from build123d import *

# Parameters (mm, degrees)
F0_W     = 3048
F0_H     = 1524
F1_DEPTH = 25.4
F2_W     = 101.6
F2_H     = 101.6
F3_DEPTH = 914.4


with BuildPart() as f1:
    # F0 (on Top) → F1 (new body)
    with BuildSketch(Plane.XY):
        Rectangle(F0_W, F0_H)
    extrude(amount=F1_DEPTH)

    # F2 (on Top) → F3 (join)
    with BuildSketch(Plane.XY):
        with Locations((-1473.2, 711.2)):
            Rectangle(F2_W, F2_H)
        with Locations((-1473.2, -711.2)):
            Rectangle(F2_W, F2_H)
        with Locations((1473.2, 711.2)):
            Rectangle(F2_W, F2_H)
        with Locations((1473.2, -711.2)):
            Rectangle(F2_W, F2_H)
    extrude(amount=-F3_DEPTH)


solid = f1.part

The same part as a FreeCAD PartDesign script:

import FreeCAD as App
import Part
import Sketcher

V = App.Vector
Q = App.Units.Quantity

doc = App.newDocument("Part")
params = doc.addObject("Spreadsheet::Sheet", "Params")
for row, (alias, value) in enumerate([
    ("sketch1_width", "120 in"),
    ("sketch1_height", "60 in"),
    ("pad1_length", "1 in"),
    ("sketch2_width", "4 in"),
    ("pad2_length", "36 in"),
], start=1):
    params.set(f"A{row}", alias)
    params.set(f"B{row}", "=" + value)
    params.setAlias(f"B{row}", alias)

body = doc.addObject("PartDesign::Body", "Body")

# Sketch on XY plane
sketch1 = body.newObject("Sketcher::SketchObject", "Sketch")
sketch1.AttachmentSupport = (doc.getObject("XY_Plane"), [""])
sketch1.MapMode = "FlatFace"
sketch1.addGeometry([
    Part.LineSegment(V(-1524, 762, 0), V(-1524, -762, 0)),
    Part.LineSegment(V(-1524, -762, 0), V(1524, -762, 0)),
    Part.LineSegment(V(1524, -762, 0), V(1524, 762, 0)),
    Part.LineSegment(V(1524, 762, 0), V(-1524, 762, 0)),
], False)
sketch1.addConstraint([
    Sketcher.Constraint("Coincident", 0, 2, 1, 1),
    Sketcher.Constraint("Coincident", 1, 2, 2, 1),
    Sketcher.Constraint("Coincident", 2, 2, 3, 1),
    Sketcher.Constraint("Coincident", 3, 2, 0, 1),
    Sketcher.Constraint("Vertical", 0),
    Sketcher.Constraint("Horizontal", 1),
    Sketcher.Constraint("Vertical", 2),
    Sketcher.Constraint("Horizontal", 3),
    Sketcher.Constraint("Symmetric", 0, 2, 2, 2, -1, 1),
    Sketcher.Constraint("DistanceX", 1, 1, 1, 2, Q("120 in")),
    Sketcher.Constraint("DistanceY", 0, 2, 0, 1, Q("60 in")),
])
sketch1.setExpression("Constraints[9]", "Params.sketch1_width")
sketch1.setExpression("Constraints[10]", "Params.sketch1_height")
pad1 = body.newObject("PartDesign::Pad", "Pad")
pad1.Profile = sketch1
pad1.setExpression("Length", "Params.pad1_length")

# Sketch on XY plane
sketch2 = body.newObject("Sketcher::SketchObject", "Sketch001")
sketch2.AttachmentSupport = (doc.getObject("XY_Plane"), [""])
sketch2.MapMode = "FlatFace"
sketch2.addGeometry([
    Part.LineSegment(V(-1524, 762, 0), V(-1524, 660, 0)),  # 0
    Part.LineSegment(V(-1524, 660, 0), V(-1422, 660, 0)),  # 1
    Part.LineSegment(V(-1422, 660, 0), V(-1422, 762, 0)),  # 2
    Part.LineSegment(V(-1422, 762, 0), V(-1524, 762, 0)),  # 3
    Part.LineSegment(V(-1524, -660, 0), V(-1524, -762, 0)),  # 4
    Part.LineSegment(V(-1524, -762, 0), V(-1422, -762, 0)),  # 5
    Part.LineSegment(V(-1422, -762, 0), V(-1422, -660, 0)),  # 6
    Part.LineSegment(V(-1422, -660, 0), V(-1524, -660, 0)),  # 7
    Part.LineSegment(V(1422, 762, 0), V(1422, 660, 0)),  # 8
    Part.LineSegment(V(1422, 660, 0), V(1524, 660, 0)),  # 9
    Part.LineSegment(V(1524, 660, 0), V(1524, 762, 0)),  # 10
    Part.LineSegment(V(1524, 762, 0), V(1422, 762, 0)),  # 11
    Part.LineSegment(V(1422, -660, 0), V(1422, -762, 0)),  # 12
    Part.LineSegment(V(1422, -762, 0), V(1524, -762, 0)),  # 13
    Part.LineSegment(V(1524, -762, 0), V(1524, -660, 0)),  # 14
    Part.LineSegment(V(1524, -660, 0), V(1422, -660, 0)),  # 15
], False)
sketch2.addConstraint([
    Sketcher.Constraint("Coincident", 0, 2, 1, 1),
    Sketcher.Constraint("Coincident", 1, 2, 2, 1),
    Sketcher.Constraint("Coincident", 2, 2, 3, 1),
    Sketcher.Constraint("Coincident", 3, 2, 0, 1),
    Sketcher.Constraint("Coincident", 4, 2, 5, 1),
    Sketcher.Constraint("Coincident", 5, 2, 6, 1),
    Sketcher.Constraint("Coincident", 6, 2, 7, 1),
    Sketcher.Constraint("Coincident", 7, 2, 4, 1),
    Sketcher.Constraint("Coincident", 8, 2, 9, 1),
    Sketcher.Constraint("Coincident", 9, 2, 10, 1),
    Sketcher.Constraint("Coincident", 10, 2, 11, 1),
    Sketcher.Constraint("Coincident", 11, 2, 8, 1),
    Sketcher.Constraint("Coincident", 12, 2, 13, 1),
    Sketcher.Constraint("Coincident", 13, 2, 14, 1),
    Sketcher.Constraint("Coincident", 14, 2, 15, 1),
    Sketcher.Constraint("Coincident", 15, 2, 12, 1),
    Sketcher.Constraint("Vertical", 0),
    Sketcher.Constraint("Horizontal", 1),
    Sketcher.Constraint("Vertical", 2),
    Sketcher.Constraint("Horizontal", 3),
    Sketcher.Constraint("Vertical", 4),
    Sketcher.Constraint("Horizontal", 5),
    Sketcher.Constraint("Vertical", 6),
    Sketcher.Constraint("Horizontal", 7),
    Sketcher.Constraint("Vertical", 8),
    Sketcher.Constraint("Horizontal", 9),
    Sketcher.Constraint("Vertical", 10),
    Sketcher.Constraint("Horizontal", 11),
    Sketcher.Constraint("Vertical", 12),
    Sketcher.Constraint("Horizontal", 13),
    Sketcher.Constraint("Vertical", 14),
    Sketcher.Constraint("Horizontal", 15),
    Sketcher.Constraint("Symmetric", 6, 2, 8, 2, -1, 1),
    Sketcher.Constraint("Symmetric", 4, 2, 10, 2, -1, 1),
    Sketcher.Constraint("Symmetric", 2, 2, 12, 2, -1, 1),
    Sketcher.Constraint("Symmetric", 0, 2, 14, 2, -1, 1),
    Sketcher.Constraint("Symmetric", 1, 2, 8, 2, -2),
    Sketcher.Constraint("Symmetric", 3, 2, 10, 2, -2),
    Sketcher.Constraint("Equal", 15, 0),
    Sketcher.Constraint("DistanceX", 1, 1, 1, 2, Q("4 in")),
    Sketcher.Constraint("DistanceX", 0, 2, -1, 1, Q("60 in")),
    Sketcher.Constraint("DistanceY", -1, 1, 0, 2, Q("26 in")),
])
sketch2.setExpression("Constraints[39]", "Params.sketch2_width")
pad2 = body.newObject("PartDesign::Pad", "Pad001")
pad2.Profile = sketch2
pad2.setExpression("Length", "Params.pad2_length")
pad2.Reversed = True

doc.recompute()
